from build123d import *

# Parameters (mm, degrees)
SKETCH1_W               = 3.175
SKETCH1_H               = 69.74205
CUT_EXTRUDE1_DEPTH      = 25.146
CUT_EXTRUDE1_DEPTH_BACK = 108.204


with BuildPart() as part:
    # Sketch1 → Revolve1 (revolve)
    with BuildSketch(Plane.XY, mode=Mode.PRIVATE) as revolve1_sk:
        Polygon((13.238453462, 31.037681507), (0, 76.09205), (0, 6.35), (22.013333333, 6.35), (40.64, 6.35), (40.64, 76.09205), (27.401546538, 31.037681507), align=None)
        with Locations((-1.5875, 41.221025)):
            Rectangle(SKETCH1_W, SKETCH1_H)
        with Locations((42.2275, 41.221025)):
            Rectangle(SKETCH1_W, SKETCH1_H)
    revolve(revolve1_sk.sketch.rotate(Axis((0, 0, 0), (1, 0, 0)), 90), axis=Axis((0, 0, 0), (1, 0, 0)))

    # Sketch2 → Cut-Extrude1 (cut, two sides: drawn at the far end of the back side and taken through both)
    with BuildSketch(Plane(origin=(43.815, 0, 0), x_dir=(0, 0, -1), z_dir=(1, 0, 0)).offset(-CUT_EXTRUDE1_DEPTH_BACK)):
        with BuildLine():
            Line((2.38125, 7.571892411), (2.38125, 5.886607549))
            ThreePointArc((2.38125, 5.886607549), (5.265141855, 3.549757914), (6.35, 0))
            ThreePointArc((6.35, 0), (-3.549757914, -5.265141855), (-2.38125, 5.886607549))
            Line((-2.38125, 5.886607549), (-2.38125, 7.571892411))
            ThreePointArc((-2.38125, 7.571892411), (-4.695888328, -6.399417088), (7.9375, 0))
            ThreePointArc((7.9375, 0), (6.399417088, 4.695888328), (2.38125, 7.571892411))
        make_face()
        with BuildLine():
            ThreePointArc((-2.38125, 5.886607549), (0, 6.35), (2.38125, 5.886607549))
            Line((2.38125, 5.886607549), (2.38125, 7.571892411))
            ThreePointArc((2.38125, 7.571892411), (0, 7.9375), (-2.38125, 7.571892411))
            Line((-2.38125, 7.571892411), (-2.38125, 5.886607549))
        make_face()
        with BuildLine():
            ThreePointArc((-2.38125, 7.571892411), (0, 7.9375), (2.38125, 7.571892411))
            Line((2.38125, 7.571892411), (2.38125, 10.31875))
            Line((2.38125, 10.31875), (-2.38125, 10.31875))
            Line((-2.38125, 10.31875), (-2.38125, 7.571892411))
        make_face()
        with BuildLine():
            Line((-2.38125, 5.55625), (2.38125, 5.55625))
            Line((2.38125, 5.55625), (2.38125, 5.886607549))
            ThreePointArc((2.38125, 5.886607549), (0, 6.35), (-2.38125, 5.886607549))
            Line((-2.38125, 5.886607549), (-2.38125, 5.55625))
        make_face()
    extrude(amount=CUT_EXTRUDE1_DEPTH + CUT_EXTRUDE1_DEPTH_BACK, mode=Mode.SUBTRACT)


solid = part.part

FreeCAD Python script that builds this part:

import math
import FreeCAD as App
import Part
import Sketcher
Q = App.Units.Quantity


def add_polygon(sketch, points):
    """Adds a closed chain of lines whose ends are joined by coincident constraints."""
    first, n = sketch.GeometryCount, len(points)
    for a, b in zip(points, points[1:] + points[:1]):
        sketch.addGeometry(Part.LineSegment(App.Vector(*a, 0), App.Vector(*b, 0)), False)
    for i in range(n):
        sketch.addConstraint(Sketcher.Constraint("Coincident", first + i, 2, first + (i + 1) % n, 1))

doc = App.newDocument("Part")
body = doc.addObject("PartDesign::Body", "Body")

# Sketch on XY plane
sketch1 = body.newObject("Sketcher::SketchObject", "Sketch")
sketch1.AttachmentSupport = (doc.getObject("XY_Plane"), [""])
sketch1.MapMode = "FlatFace"
add_polygon(sketch1, [(13.2, 31), (0, 76.1), (-3.2, 76.1), (-3.2, 6.3), (43.8, 6.3), (43.8, 76.1), (40.6, 76.1), (27.4, 31)])  # lines 0-7
sketch1.addConstraint([
    Sketcher.Constraint("Horizontal", 1),
    Sketcher.Constraint("Vertical", 2),
    Sketcher.Constraint("Horizontal", 3),
    Sketcher.Constraint("Vertical", 4),
    Sketcher.Constraint("Horizontal", 5),
    Sketcher.Constraint("Horizontal", 7),
    Sketcher.Constraint("PointOnObject", 0, 2, -2),
    Sketcher.Constraint("Horizontal", 1, 2, 4, 2),
    Sketcher.Constraint("Equal", 1, 5),
    Sketcher.Constraint("Equal", 0, 6),
    Sketcher.Constraint("DistanceX", 3, 1, 3, 2, Q("1.85 in")),
    Sketcher.Constraint("DistanceX", -1, 1, 5, 2, Q("1.6 in")),
    Sketcher.Constraint("DistanceY", -1, 1, 2, 2, Q("0.25 in")),
    Sketcher.Constraint("DistanceY", 2, 2, 2, 1, 69.74205),
    Sketcher.Constraint("DistanceX", 7, 2, 7, 1, 14.163093),
    Sketcher.Constraint("DistanceY", -1, 1, 6, 2, 31.037682),
])
revolution = body.newObject("PartDesign::Revolution", "Revolution")
revolution.Profile = sketch1
revolution.ReferenceAxis = (sketch1, ["H_Axis"])
revolution.Angle = 360

# Sketch on YZ plane
sketch2 = body.newObject("Sketcher::SketchObject", "Sketch001")
sketch2.AttachmentSupport = (doc.getObject("YZ_Plane"), [""])
sketch2.MapMode = "FlatFace"
sketch2.AttachmentOffset = App.Placement(App.Vector(0, 0, 1.725 * 25.4), App.Rotation())
sketch2.addGeometry([
    Part.ArcOfCircle(Part.Circle(App.Vector(0, 0, 0), App.Vector(0, 0, 1), 7.94), math.radians(17), math.radians(270)),  # 0
    Part.ArcOfCircle(Part.Circle(App.Vector(0, 0, 0), App.Vector(0, 0, 1), 7.94), math.radians(-90), math.radians(-17)),  # 1
    Part.LineSegment(App.Vector(7.57, -2.38, 0), App.Vector(10.32, -2.38, 0)),  # 2
    Part.LineSegment(App.Vector(10.32, -2.38, 0), App.Vector(10.32, 2.38, 0)),  # 3
    Part.LineSegment(App.Vector(10.32, 2.38, 0), App.Vector(7.57, 2.38, 0)),  # 4
    Part.ArcOfCircle(Part.Circle(App.Vector(0, 0, 0), App.Vector(0, 0, 1), 6.35), math.radians(-90), math.radians(-22)),  # 5
    Part.ArcOfCircle(Part.Circle(App.Vector(0, 0, 0), App.Vector(0, 0, 1), 6.35), math.radians(22), math.radians(270)),  # 6
    Part.LineSegment(App.Vector(5.89, 2.38, 0), App.Vector(5.56, 2.38, 0)),  # 7
    Part.LineSegment(App.Vector(5.56, 2.38, 0), App.Vector(5.56, -2.38, 0)),  # 8
    Part.LineSegment(App.Vector(5.56, -2.38, 0), App.Vector(5.89, -2.38, 0)),  # 9
], False)
sketch2.addConstraint([
    Sketcher.Constraint("Tangent", 0, 2, 1, 1),
    Sketcher.Constraint("Coincident", 1, 2, 2, 1),
    Sketcher.Constraint("Coincident", 2, 2, 3, 1),
    Sketcher.Constraint("Coincident", 3, 2, 4, 1),
    Sketcher.Constraint("Coincident", 4, 2, 0, 1),
    Sketcher.Constraint("Tangent", 5, 1, 6, 2),
    Sketcher.Constraint("Coincident", 6, 1, 7, 1),
    Sketcher.Constraint("Coincident", 7, 2, 8, 1),
    Sketcher.Constraint("Coincident", 8, 2, 9, 1),
    Sketcher.Constraint("Coincident", 9, 2, 5, 2),
    Sketcher.Constraint("Horizontal", 2),
    Sketcher.Constraint("Vertical", 3),
    Sketcher.Constraint("Horizontal", 4),
    Sketcher.Constraint("Horizontal", 7),
    Sketcher.Constraint("Vertical", 8),
    Sketcher.Constraint("Horizontal", 9),
    Sketcher.Constraint("Coincident", 0, 3, -1, 1),
    Sketcher.Constraint("Coincident", 5, 3, -1, 1),
    Sketcher.Constraint("Equal", 0, 1),
    Sketcher.Constraint("Equal", 5, 6),
    Sketcher.Constraint("PointOnObject", 0, 2, -2),
    Sketcher.Constraint("PointOnObject", 5, 1, -2),
    Sketcher.Constraint("Horizontal", 4, 2, 6, 1),
    Sketcher.Constraint("Horizontal", 2, 2, 8, 2),
    Sketcher.Constraint("Vertical", 1, 2, 4, 2),
    Sketcher.Constraint("Radius", 5, Q("0.25 in")),
    Sketcher.Constraint("Radius", 0, Q("0.3125 in")),
    Sketcher.Constraint("DistanceY", 3, 1, 3, 2, Q("0.1875 in")),
    Sketcher.Constraint("DistanceX", -1, 1, 2, 2, Q("0.40625 in")),
    Sketcher.Constraint("DistanceX", -1, 1, 7, 2, Q("0.21875 in")),
])
pocket1 = body.newObject("PartDesign::Pocket", "Pocket")
pocket1.Profile = sketch2
pocket1.Type = "ThroughAll"
pocket1.Midplane = True

doc.recompute()
